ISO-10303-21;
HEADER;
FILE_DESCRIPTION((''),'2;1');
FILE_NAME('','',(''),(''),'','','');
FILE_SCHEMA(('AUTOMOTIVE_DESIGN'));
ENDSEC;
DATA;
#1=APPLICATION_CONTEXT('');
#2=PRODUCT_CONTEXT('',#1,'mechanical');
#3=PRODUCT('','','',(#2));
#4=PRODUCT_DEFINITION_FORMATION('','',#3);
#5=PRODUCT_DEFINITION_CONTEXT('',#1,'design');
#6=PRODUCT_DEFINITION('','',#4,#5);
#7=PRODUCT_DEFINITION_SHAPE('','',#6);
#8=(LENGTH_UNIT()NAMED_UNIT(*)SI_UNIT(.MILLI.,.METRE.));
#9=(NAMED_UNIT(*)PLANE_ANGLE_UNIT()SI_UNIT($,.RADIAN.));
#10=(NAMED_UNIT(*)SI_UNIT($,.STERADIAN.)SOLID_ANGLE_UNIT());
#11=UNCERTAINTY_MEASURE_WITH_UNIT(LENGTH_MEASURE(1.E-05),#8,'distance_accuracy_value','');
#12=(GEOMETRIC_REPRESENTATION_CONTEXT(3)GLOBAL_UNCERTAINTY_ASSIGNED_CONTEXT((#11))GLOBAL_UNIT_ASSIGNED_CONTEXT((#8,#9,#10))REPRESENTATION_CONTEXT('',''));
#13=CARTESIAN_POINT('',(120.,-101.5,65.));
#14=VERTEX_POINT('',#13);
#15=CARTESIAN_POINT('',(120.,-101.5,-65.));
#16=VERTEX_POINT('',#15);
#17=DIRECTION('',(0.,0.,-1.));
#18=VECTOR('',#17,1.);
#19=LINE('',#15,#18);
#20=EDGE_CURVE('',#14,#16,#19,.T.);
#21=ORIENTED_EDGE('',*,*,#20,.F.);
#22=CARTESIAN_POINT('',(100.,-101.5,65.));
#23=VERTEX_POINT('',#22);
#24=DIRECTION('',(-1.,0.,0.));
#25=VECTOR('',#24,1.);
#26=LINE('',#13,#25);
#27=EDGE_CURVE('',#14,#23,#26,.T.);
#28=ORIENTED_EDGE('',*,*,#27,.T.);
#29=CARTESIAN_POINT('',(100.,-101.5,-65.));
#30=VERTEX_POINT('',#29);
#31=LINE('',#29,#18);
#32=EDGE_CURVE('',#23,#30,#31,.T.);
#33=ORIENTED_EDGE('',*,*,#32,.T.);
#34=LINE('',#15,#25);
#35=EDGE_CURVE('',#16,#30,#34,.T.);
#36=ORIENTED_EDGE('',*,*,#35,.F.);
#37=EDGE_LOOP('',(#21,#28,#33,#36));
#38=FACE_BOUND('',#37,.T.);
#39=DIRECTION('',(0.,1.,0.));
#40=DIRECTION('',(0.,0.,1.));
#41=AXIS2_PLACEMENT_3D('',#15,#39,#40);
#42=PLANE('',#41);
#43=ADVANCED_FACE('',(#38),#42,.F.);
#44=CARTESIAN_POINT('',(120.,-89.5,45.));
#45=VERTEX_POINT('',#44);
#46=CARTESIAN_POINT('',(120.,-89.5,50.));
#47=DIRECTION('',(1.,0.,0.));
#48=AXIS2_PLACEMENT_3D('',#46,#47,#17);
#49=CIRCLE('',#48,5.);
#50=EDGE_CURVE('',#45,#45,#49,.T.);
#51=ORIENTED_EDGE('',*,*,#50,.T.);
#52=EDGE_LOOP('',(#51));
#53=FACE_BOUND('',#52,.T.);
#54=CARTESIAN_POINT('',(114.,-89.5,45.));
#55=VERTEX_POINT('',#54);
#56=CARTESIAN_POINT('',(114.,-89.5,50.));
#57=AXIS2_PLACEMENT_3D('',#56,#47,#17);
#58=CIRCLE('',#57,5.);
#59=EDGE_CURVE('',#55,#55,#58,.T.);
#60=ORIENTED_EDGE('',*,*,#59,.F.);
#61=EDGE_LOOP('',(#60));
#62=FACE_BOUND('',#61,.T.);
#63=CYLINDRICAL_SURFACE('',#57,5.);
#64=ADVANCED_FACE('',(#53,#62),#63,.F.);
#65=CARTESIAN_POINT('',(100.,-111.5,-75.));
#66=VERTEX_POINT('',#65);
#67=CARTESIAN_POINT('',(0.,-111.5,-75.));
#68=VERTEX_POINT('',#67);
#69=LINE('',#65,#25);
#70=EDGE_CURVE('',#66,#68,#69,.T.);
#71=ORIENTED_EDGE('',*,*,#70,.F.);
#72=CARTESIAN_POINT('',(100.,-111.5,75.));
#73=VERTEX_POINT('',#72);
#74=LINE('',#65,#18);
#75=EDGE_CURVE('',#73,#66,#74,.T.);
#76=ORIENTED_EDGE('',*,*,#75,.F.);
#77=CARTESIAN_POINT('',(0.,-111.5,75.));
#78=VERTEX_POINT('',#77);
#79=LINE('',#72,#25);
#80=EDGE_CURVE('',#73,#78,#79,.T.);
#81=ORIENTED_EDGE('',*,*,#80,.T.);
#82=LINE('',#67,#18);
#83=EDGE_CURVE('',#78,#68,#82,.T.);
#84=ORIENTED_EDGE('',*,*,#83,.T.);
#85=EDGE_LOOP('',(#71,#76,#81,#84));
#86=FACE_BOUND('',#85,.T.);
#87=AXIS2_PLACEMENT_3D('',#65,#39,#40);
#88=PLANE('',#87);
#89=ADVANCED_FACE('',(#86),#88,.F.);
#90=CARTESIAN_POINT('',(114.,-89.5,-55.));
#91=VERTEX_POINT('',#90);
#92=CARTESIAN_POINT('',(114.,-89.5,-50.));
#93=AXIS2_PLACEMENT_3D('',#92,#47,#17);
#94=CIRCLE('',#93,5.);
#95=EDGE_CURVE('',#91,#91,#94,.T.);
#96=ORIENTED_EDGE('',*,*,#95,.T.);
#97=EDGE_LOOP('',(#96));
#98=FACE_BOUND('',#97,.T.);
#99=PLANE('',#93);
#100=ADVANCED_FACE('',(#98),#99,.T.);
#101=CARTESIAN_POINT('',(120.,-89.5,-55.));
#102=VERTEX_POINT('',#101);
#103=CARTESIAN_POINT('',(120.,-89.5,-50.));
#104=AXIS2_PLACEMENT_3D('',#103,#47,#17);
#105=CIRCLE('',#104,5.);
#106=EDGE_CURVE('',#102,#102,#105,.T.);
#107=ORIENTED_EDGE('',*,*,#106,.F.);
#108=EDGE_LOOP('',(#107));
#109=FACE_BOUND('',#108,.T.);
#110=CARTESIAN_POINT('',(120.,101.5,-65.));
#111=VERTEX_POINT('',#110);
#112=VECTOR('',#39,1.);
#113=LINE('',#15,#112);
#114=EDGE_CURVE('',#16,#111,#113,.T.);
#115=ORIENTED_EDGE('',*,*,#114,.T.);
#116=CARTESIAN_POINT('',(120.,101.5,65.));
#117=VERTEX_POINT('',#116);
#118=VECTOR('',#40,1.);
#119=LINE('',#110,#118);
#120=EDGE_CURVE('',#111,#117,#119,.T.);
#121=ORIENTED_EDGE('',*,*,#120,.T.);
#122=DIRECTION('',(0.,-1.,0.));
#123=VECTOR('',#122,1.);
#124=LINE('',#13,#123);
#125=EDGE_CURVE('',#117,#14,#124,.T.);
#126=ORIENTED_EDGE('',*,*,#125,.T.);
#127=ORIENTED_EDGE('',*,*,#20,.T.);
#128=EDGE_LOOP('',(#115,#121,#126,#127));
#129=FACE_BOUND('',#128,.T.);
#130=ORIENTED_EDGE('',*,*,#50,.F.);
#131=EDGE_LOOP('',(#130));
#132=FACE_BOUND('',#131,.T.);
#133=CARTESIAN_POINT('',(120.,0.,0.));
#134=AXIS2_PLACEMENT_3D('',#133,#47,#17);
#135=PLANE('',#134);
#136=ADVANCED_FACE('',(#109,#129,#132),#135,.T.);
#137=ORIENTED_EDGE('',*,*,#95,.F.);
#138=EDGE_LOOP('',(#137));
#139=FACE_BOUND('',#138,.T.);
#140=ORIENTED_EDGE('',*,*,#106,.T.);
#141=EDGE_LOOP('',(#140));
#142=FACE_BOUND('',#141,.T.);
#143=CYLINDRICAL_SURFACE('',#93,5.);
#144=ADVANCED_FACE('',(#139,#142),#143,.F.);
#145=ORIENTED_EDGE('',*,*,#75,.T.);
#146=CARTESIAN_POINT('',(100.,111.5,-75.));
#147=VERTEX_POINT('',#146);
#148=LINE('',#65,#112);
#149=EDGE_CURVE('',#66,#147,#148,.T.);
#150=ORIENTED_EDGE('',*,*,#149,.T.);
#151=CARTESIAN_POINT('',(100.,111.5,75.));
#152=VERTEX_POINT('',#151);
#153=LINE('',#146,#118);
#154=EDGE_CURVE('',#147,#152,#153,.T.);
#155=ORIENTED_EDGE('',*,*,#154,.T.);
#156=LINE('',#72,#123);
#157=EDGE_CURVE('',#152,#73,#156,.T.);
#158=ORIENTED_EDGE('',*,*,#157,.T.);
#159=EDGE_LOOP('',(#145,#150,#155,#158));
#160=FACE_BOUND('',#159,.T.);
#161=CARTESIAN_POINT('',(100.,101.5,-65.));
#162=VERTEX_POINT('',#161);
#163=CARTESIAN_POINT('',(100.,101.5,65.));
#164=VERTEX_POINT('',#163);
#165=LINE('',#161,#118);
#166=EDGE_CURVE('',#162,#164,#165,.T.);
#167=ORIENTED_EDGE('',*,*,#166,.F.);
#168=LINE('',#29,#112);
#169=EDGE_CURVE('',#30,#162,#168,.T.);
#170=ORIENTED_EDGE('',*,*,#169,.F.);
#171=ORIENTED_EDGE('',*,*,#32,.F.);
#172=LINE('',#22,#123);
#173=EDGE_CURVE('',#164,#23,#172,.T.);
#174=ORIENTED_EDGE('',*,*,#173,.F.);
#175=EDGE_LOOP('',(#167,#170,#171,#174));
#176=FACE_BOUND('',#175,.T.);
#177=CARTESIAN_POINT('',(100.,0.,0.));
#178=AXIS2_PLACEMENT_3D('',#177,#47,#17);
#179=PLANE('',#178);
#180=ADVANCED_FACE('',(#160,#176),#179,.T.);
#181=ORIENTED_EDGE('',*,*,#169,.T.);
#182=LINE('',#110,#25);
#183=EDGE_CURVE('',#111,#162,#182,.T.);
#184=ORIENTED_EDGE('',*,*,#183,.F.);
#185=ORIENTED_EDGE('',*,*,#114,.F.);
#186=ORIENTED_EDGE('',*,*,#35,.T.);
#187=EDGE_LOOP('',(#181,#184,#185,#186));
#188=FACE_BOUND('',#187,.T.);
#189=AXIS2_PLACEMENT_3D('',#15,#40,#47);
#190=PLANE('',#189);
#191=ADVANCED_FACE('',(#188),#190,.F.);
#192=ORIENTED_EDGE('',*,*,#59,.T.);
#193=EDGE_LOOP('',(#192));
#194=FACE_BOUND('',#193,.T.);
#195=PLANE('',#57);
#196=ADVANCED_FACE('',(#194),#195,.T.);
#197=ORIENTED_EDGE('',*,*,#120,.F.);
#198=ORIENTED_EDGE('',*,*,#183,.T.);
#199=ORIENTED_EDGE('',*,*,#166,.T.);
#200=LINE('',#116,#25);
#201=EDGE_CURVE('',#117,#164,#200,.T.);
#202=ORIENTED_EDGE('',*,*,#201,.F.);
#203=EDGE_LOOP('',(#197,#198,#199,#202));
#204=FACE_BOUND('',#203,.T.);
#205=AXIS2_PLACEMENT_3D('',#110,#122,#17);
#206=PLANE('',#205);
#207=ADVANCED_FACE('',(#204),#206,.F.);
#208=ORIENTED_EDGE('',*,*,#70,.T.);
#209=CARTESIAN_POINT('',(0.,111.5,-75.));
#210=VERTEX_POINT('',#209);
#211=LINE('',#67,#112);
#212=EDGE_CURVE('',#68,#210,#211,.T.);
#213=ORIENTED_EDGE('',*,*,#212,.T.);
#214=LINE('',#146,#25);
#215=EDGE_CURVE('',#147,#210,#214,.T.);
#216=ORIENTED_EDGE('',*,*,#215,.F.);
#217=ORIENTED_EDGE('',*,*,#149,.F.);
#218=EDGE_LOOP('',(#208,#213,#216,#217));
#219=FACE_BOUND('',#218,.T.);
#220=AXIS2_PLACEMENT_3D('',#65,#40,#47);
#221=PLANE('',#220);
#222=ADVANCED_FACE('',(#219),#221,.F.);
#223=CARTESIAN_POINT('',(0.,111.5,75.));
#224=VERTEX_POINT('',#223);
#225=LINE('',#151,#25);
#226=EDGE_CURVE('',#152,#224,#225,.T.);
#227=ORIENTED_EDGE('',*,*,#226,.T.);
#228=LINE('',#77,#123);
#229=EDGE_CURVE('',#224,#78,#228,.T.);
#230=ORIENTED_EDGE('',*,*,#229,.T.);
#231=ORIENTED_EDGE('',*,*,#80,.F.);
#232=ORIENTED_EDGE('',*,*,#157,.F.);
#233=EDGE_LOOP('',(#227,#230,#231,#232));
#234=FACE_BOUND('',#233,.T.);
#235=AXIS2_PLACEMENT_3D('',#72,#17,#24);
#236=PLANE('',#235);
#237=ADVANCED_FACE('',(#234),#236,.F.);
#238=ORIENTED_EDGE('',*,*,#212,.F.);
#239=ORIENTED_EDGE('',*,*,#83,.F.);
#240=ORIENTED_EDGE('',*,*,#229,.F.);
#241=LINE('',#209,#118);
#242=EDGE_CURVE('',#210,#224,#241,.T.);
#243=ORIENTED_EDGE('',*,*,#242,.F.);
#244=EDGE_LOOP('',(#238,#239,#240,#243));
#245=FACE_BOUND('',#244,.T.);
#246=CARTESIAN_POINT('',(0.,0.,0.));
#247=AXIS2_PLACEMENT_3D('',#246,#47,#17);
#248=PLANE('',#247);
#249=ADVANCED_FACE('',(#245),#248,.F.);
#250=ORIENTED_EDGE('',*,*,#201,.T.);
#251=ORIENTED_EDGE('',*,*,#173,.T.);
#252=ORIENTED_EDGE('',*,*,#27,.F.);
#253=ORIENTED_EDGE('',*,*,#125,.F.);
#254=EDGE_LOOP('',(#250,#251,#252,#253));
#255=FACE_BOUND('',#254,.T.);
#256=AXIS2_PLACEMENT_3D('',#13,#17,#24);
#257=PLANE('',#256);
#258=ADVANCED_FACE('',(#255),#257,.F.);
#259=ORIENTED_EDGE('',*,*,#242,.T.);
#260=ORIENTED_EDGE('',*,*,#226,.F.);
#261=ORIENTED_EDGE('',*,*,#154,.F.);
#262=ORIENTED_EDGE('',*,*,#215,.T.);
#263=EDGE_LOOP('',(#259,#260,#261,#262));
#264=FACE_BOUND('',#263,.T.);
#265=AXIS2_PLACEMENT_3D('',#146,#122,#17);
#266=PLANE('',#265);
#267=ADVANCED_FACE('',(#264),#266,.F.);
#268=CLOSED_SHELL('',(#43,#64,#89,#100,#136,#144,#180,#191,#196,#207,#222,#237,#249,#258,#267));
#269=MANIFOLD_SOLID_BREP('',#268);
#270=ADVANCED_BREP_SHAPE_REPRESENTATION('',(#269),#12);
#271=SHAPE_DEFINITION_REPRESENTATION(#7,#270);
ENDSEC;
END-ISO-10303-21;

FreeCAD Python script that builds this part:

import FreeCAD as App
import Part
import Sketcher

V = App.Vector
Q = App.Units.Quantity

doc = App.newDocument("Part")
body = doc.addObject("PartDesign::Body", "Body")

sketch1 = body.newObject("Sketcher::SketchObject", "Sketch")
sketch1.AttachmentSupport = (doc.getObject("YZ_Plane"), [""])
sketch1.MapMode = "FlatFace"
sketch1.addGeometry([
    Part.LineSegment(V(111.5, 75, 0), V(-111.5, 75, 0)),
    Part.LineSegment(V(-111.5, 75, 0), V(-111.5, -75, 0)),
    Part.LineSegment(V(-111.5, -75, 0), V(111.5, -75, 0)),
    Part.LineSegment(V(111.5, -75, 0), V(111.5, 75, 0)),
], False)
sketch1.addConstraint([
    Sketcher.Constraint("Coincident", 0, 2, 1, 1),
    Sketcher.Constraint("Coincident", 1, 2, 2, 1),
    Sketcher.Constraint("Coincident", 2, 2, 3, 1),
    Sketcher.Constraint("Coincident", 3, 2, 0, 1),
    Sketcher.Constraint("Horizontal", 0),
    Sketcher.Constraint("Vertical", 1),
    Sketcher.Constraint("Horizontal", 2),
    Sketcher.Constraint("Vertical", 3),
    Sketcher.Constraint("Symmetric", 0, 2, 2, 2, -1, 1),
    Sketcher.Constraint("DistanceX", 0, 2, 0, 1, Q("223 mm")),
    Sketcher.Constraint("DistanceY", 1, 2, 1, 1, Q("150 mm")),
])
pad1 = body.newObject("PartDesign::Pad", "Pad")
pad1.Profile = sketch1
pad1.Length = 100

sketch2 = body.newObject("Sketcher::SketchObject", "Sketch001")
sketch2.AttachmentSupport = (doc.getObject("YZ_Plane"), [""])
sketch2.MapMode = "FlatFace"
sketch2.AttachmentOffset = App.Placement(V(0, 0, 100), App.Rotation())
sketch2.addGeometry([
    Part.LineSegment(V(101.5, 65, 0), V(-101.5, 65, 0)),
    Part.LineSegment(V(-101.5, 65, 0), V(-101.5, -65, 0)),
    Part.LineSegment(V(-101.5, -65, 0), V(101.5, -65, 0)),
    Part.LineSegment(V(101.5, -65, 0), V(101.5, 65, 0)),
], False)
sketch2.addConstraint([
    Sketcher.Constraint("Coincident", 0, 2, 1, 1),
    Sketcher.Constraint("Coincident", 1, 2, 2, 1),
    Sketcher.Constraint("Coincident", 2, 2, 3, 1),
    Sketcher.Constraint("Coincident", 3, 2, 0, 1),
    Sketcher.Constraint("Horizontal", 0),
    Sketcher.Constraint("Vertical", 1),
    Sketcher.Constraint("Horizontal", 2),
    Sketcher.Constraint("Vertical", 3),
    Sketcher.Constraint("Symmetric", 0, 2, 2, 2, -1, 1),
    Sketcher.Constraint("DistanceX", 0, 2, 0, 1, Q("203 mm")),
    Sketcher.Constraint("DistanceY", 1, 2, 1, 1, Q("130 mm")),
])
pad2 = body.newObject("PartDesign::Pad", "Pad001")
pad2.Profile = sketch2
pad2.Length = 20

sketch3 = body.newObject("Sketcher::SketchObject", "Sketch002")
sketch3.AttachmentSupport = (doc.getObject("YZ_Plane"), [""])
sketch3.MapMode = "FlatFace"
sketch3.AttachmentOffset = App.Placement(V(0, 0, 120), App.Rotation())
sketch3.addGeometry([
    Part.Circle(V(-89.5, 50, 0), V(0, 0, 1), 5),
    Part.Circle(V(-89.5, -50, 0), V(0, 0, 1), 5),
], False)
sketch3.addConstraint([
    Sketcher.Constraint("Equal", 0, 1),
    Sketcher.Constraint("Symmetric", 0, 3, 1, 3, -1),
    Sketcher.Constraint("Diameter", 0, Q("10 mm")),
    Sketcher.Constraint("DistanceY", -1, 1, 0, 3, Q("50 mm")),
    Sketcher.Constraint("DistanceX", 0, 3, -1, 1, Q("89.5 mm")),
])
pocket1 = body.newObject("PartDesign::Pocket", "Pocket")
pocket1.Profile = sketch3
pocket1.Length = 6

doc.recompute()
